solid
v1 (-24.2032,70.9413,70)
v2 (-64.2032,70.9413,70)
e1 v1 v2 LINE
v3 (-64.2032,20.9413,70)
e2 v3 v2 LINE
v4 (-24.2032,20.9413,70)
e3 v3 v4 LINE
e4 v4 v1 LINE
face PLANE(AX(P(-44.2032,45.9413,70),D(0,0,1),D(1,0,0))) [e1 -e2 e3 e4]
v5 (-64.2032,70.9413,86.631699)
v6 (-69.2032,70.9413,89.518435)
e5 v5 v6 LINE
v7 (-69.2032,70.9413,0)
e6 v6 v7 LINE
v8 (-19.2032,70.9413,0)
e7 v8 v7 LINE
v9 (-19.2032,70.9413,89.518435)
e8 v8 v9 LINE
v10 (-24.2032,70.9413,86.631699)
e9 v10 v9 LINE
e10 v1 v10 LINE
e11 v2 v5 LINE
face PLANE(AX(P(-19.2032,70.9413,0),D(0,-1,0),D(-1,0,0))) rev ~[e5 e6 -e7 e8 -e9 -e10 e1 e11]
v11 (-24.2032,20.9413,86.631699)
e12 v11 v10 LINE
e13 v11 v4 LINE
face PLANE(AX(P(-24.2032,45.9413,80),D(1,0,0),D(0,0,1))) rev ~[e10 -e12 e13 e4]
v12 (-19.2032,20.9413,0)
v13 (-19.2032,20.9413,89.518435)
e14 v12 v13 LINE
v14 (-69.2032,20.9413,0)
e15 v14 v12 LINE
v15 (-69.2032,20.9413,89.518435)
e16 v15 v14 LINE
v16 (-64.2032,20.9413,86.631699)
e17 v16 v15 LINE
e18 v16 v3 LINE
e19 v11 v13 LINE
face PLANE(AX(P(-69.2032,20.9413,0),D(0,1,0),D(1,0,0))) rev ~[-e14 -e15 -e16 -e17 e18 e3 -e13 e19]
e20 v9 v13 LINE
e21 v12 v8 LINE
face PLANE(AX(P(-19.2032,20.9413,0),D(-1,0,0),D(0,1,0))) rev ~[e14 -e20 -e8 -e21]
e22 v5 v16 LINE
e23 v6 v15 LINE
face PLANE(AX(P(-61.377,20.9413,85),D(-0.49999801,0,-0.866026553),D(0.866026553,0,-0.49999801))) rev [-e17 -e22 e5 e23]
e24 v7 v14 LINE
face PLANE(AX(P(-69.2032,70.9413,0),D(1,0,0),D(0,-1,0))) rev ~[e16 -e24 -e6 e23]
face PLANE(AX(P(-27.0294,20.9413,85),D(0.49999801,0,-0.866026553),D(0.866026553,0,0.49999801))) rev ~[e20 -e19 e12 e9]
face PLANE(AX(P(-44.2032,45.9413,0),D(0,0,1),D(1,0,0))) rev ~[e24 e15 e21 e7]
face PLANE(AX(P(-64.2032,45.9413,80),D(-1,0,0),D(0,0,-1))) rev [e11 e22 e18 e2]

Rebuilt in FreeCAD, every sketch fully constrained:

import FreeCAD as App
import Part
import Sketcher
Q = App.Units.Quantity

doc = App.newDocument("Part")
body = doc.addObject("PartDesign::Body", "Body")

sketch1 = body.newObject("Sketcher::SketchObject", "Sketch")
sketch1.AttachmentSupport = (doc.getObject("XY_Plane"), [""])
sketch1.MapMode = "FlatFace"
sketch1.addGeometry(Part.LineSegment(App.Vector(-69, 71, 0), App.Vector(-69, 21, 0)), False)
sketch1.addGeometry(Part.LineSegment(App.Vector(-69, 21, 0), App.Vector(-19, 21, 0)), False)
sketch1.addGeometry(Part.LineSegment(App.Vector(-19, 21, 0), App.Vector(-19, 71, 0)), False)
sketch1.addGeometry(Part.LineSegment(App.Vector(-19, 71, 0), App.Vector(-69, 71, 0)), False)
sketch1.addConstraint(Sketcher.Constraint("Coincident", 0, 2, 1, 1))
sketch1.addConstraint(Sketcher.Constraint("Coincident", 1, 2, 2, 1))
sketch1.addConstraint(Sketcher.Constraint("Coincident", 2, 2, 3, 1))
sketch1.addConstraint(Sketcher.Constraint("Coincident", 3, 2, 0, 1))
sketch1.addConstraint(Sketcher.Constraint("Vertical", 0))
sketch1.addConstraint(Sketcher.Constraint("Horizontal", 1))
sketch1.addConstraint(Sketcher.Constraint("Vertical", 2))
sketch1.addConstraint(Sketcher.Constraint("Horizontal", 3))
sketch1.addConstraint(Sketcher.Constraint("Equal", 3, 0))
sketch1.addConstraint(Sketcher.Constraint("DistanceX", 1, 1, 1, 2, Q("50 mm")))
sketch1.addConstraint(Sketcher.Constraint("DistanceX", 0, 2, -1, 1, Q("69.2032 mm")))
sketch1.addConstraint(Sketcher.Constraint("DistanceY", -1, 1, 0, 2, Q("20.9413 mm")))
pad1 = body.newObject("PartDesign::Pad", "Pad")
pad1.Profile = sketch1
pad1.Length = 70

sketch2 = body.newObject("Sketcher::SketchObject", "Sketch001")
sketch2.AttachmentSupport = (doc.getObject("YZ_Plane"), [""])
sketch2.MapMode = "FlatFace"
sketch2.AttachmentOffset = App.Placement(App.Vector(0, 0, -19.2032), App.Rotation())
sketch2.addGeometry(Part.LineSegment(App.Vector(21, 90, 0), App.Vector(21, 70, 0)), False)
sketch2.addGeometry(Part.LineSegment(App.Vector(21, 70, 0), App.Vector(71, 70, 0)), False)
sketch2.addGeometry(Part.LineSegment(App.Vector(71, 70, 0), App.Vector(71, 90, 0)), False)
sketch2.addGeometry(Part.LineSegment(App.Vector(71, 90, 0), App.Vector(21, 90, 0)), False)
sketch2.addConstraint(Sketcher.Constraint("Coincident", 0, 2, 1, 1))
sketch2.addConstraint(Sketcher.Constraint("Coincident", 1, 2, 2, 1))
sketch2.addConstraint(Sketcher.Constraint("Coincident", 2, 2, 3, 1))
sketch2.addConstraint(Sketcher.Constraint("Coincident", 3, 2, 0, 1))
sketch2.addConstraint(Sketcher.Constraint("Vertical", 0))
sketch2.addConstraint(Sketcher.Constraint("Horizontal", 1))
sketch2.addConstraint(Sketcher.Constraint("Vertical", 2))
sketch2.addConstraint(Sketcher.Constraint("Horizontal", 3))
sketch2.addConstraint(Sketcher.Constraint("DistanceX", 1, 1, 1, 2, Q("50 mm")))
sketch2.addConstraint(Sketcher.Constraint("DistanceY", 0, 2, 0, 1, Q("20 mm")))
sketch2.addConstraint(Sketcher.Constraint("DistanceY", -1, 1, 0, 2, Q("70 mm")))
sketch2.addConstraint(Sketcher.Constraint("DistanceX", -1, 1, 0, 2, Q("20.9413 mm")))
pad2 = body.newObject("PartDesign::Pad", "Pad001")
pad2.Profile = sketch2
pad2.Length = 5
pad2.Reversed = True

sketch3 = body.newObject("Sketcher::SketchObject", "Sketch002")
sketch3.AttachmentSupport = (doc.getObject("XZ_Plane"), [""])
sketch3.MapMode = "FlatFace"
sketch3.AttachmentOffset = App.Placement(App.Vector(0, 0, -20.9413), App.Rotation())
sketch3.addGeometry(Part.LineSegment(App.Vector(-32, 94, 0), App.Vector(-27, 85, 0)), False)
sketch3.addGeometry(Part.LineSegment(App.Vector(-27, 85, 0), App.Vector(-18, 90, 0)), False)
sketch3.addGeometry(Part.LineSegment(App.Vector(-18, 90, 0), App.Vector(-23, 99, 0)), False)
sketch3.addGeometry(Part.LineSegment(App.Vector(-23, 99, 0), App.Vector(-32, 94, 0)), False)
sketch3.addConstraint(Sketcher.Constraint("Coincident", 0, 2, 1, 1))
sketch3.addConstraint(Sketcher.Constraint("Coincident", 1, 2, 2, 1))
sketch3.addConstraint(Sketcher.Constraint("Coincident", 2, 2, 3, 1))
sketch3.addConstraint(Sketcher.Constraint("Coincident", 3, 2, 0, 1))
sketch3.addConstraint(Sketcher.Constraint("Perpendicular", 0, 1))
sketch3.addConstraint(Sketcher.Constraint("Perpendicular", 1, 2))
sketch3.addConstraint(Sketcher.Constraint("Perpendicular", 2, 3))
sketch3.addConstraint(Sketcher.Constraint("Equal", 0, 1))
sketch3.addConstraint(Sketcher.Constraint("Angle", 0, Q("-59.9998 deg")))
sketch3.addConstraint(Sketcher.Constraint("Distance", 0, Q("10 mm")))
sketch3.addConstraint(Sketcher.Constraint("DistanceY", -1, 1, 0, 2, Q("85 mm")))
sketch3.addConstraint(Sketcher.Constraint("DistanceX", 1, 2, -1, 1, Q("18.369 mm")))
pocket1 = body.newObject("PartDesign::Pocket", "Pocket")
pocket1.Profile = sketch3
pocket1.Type = "ThroughAll"
doc.recompute()

datumplane = body.newObject("PartDesign::Plane", "DatumPlane")
datumplane.AttachmentSupport = (doc.getObject("YZ_Plane"), [""])
datumplane.MapMode = "FlatFace"
datumplane.AttachmentOffset = App.Placement(App.Vector(0, 0, -44.2032), App.Rotation())
mirrored = body.newObject("PartDesign::Mirrored", "Mirrored")
mirrored.Originals = [pad2, pocket1]
mirrored.MirrorPlane = (datumplane, [""])
body.Tip = mirrored

doc.recompute()
